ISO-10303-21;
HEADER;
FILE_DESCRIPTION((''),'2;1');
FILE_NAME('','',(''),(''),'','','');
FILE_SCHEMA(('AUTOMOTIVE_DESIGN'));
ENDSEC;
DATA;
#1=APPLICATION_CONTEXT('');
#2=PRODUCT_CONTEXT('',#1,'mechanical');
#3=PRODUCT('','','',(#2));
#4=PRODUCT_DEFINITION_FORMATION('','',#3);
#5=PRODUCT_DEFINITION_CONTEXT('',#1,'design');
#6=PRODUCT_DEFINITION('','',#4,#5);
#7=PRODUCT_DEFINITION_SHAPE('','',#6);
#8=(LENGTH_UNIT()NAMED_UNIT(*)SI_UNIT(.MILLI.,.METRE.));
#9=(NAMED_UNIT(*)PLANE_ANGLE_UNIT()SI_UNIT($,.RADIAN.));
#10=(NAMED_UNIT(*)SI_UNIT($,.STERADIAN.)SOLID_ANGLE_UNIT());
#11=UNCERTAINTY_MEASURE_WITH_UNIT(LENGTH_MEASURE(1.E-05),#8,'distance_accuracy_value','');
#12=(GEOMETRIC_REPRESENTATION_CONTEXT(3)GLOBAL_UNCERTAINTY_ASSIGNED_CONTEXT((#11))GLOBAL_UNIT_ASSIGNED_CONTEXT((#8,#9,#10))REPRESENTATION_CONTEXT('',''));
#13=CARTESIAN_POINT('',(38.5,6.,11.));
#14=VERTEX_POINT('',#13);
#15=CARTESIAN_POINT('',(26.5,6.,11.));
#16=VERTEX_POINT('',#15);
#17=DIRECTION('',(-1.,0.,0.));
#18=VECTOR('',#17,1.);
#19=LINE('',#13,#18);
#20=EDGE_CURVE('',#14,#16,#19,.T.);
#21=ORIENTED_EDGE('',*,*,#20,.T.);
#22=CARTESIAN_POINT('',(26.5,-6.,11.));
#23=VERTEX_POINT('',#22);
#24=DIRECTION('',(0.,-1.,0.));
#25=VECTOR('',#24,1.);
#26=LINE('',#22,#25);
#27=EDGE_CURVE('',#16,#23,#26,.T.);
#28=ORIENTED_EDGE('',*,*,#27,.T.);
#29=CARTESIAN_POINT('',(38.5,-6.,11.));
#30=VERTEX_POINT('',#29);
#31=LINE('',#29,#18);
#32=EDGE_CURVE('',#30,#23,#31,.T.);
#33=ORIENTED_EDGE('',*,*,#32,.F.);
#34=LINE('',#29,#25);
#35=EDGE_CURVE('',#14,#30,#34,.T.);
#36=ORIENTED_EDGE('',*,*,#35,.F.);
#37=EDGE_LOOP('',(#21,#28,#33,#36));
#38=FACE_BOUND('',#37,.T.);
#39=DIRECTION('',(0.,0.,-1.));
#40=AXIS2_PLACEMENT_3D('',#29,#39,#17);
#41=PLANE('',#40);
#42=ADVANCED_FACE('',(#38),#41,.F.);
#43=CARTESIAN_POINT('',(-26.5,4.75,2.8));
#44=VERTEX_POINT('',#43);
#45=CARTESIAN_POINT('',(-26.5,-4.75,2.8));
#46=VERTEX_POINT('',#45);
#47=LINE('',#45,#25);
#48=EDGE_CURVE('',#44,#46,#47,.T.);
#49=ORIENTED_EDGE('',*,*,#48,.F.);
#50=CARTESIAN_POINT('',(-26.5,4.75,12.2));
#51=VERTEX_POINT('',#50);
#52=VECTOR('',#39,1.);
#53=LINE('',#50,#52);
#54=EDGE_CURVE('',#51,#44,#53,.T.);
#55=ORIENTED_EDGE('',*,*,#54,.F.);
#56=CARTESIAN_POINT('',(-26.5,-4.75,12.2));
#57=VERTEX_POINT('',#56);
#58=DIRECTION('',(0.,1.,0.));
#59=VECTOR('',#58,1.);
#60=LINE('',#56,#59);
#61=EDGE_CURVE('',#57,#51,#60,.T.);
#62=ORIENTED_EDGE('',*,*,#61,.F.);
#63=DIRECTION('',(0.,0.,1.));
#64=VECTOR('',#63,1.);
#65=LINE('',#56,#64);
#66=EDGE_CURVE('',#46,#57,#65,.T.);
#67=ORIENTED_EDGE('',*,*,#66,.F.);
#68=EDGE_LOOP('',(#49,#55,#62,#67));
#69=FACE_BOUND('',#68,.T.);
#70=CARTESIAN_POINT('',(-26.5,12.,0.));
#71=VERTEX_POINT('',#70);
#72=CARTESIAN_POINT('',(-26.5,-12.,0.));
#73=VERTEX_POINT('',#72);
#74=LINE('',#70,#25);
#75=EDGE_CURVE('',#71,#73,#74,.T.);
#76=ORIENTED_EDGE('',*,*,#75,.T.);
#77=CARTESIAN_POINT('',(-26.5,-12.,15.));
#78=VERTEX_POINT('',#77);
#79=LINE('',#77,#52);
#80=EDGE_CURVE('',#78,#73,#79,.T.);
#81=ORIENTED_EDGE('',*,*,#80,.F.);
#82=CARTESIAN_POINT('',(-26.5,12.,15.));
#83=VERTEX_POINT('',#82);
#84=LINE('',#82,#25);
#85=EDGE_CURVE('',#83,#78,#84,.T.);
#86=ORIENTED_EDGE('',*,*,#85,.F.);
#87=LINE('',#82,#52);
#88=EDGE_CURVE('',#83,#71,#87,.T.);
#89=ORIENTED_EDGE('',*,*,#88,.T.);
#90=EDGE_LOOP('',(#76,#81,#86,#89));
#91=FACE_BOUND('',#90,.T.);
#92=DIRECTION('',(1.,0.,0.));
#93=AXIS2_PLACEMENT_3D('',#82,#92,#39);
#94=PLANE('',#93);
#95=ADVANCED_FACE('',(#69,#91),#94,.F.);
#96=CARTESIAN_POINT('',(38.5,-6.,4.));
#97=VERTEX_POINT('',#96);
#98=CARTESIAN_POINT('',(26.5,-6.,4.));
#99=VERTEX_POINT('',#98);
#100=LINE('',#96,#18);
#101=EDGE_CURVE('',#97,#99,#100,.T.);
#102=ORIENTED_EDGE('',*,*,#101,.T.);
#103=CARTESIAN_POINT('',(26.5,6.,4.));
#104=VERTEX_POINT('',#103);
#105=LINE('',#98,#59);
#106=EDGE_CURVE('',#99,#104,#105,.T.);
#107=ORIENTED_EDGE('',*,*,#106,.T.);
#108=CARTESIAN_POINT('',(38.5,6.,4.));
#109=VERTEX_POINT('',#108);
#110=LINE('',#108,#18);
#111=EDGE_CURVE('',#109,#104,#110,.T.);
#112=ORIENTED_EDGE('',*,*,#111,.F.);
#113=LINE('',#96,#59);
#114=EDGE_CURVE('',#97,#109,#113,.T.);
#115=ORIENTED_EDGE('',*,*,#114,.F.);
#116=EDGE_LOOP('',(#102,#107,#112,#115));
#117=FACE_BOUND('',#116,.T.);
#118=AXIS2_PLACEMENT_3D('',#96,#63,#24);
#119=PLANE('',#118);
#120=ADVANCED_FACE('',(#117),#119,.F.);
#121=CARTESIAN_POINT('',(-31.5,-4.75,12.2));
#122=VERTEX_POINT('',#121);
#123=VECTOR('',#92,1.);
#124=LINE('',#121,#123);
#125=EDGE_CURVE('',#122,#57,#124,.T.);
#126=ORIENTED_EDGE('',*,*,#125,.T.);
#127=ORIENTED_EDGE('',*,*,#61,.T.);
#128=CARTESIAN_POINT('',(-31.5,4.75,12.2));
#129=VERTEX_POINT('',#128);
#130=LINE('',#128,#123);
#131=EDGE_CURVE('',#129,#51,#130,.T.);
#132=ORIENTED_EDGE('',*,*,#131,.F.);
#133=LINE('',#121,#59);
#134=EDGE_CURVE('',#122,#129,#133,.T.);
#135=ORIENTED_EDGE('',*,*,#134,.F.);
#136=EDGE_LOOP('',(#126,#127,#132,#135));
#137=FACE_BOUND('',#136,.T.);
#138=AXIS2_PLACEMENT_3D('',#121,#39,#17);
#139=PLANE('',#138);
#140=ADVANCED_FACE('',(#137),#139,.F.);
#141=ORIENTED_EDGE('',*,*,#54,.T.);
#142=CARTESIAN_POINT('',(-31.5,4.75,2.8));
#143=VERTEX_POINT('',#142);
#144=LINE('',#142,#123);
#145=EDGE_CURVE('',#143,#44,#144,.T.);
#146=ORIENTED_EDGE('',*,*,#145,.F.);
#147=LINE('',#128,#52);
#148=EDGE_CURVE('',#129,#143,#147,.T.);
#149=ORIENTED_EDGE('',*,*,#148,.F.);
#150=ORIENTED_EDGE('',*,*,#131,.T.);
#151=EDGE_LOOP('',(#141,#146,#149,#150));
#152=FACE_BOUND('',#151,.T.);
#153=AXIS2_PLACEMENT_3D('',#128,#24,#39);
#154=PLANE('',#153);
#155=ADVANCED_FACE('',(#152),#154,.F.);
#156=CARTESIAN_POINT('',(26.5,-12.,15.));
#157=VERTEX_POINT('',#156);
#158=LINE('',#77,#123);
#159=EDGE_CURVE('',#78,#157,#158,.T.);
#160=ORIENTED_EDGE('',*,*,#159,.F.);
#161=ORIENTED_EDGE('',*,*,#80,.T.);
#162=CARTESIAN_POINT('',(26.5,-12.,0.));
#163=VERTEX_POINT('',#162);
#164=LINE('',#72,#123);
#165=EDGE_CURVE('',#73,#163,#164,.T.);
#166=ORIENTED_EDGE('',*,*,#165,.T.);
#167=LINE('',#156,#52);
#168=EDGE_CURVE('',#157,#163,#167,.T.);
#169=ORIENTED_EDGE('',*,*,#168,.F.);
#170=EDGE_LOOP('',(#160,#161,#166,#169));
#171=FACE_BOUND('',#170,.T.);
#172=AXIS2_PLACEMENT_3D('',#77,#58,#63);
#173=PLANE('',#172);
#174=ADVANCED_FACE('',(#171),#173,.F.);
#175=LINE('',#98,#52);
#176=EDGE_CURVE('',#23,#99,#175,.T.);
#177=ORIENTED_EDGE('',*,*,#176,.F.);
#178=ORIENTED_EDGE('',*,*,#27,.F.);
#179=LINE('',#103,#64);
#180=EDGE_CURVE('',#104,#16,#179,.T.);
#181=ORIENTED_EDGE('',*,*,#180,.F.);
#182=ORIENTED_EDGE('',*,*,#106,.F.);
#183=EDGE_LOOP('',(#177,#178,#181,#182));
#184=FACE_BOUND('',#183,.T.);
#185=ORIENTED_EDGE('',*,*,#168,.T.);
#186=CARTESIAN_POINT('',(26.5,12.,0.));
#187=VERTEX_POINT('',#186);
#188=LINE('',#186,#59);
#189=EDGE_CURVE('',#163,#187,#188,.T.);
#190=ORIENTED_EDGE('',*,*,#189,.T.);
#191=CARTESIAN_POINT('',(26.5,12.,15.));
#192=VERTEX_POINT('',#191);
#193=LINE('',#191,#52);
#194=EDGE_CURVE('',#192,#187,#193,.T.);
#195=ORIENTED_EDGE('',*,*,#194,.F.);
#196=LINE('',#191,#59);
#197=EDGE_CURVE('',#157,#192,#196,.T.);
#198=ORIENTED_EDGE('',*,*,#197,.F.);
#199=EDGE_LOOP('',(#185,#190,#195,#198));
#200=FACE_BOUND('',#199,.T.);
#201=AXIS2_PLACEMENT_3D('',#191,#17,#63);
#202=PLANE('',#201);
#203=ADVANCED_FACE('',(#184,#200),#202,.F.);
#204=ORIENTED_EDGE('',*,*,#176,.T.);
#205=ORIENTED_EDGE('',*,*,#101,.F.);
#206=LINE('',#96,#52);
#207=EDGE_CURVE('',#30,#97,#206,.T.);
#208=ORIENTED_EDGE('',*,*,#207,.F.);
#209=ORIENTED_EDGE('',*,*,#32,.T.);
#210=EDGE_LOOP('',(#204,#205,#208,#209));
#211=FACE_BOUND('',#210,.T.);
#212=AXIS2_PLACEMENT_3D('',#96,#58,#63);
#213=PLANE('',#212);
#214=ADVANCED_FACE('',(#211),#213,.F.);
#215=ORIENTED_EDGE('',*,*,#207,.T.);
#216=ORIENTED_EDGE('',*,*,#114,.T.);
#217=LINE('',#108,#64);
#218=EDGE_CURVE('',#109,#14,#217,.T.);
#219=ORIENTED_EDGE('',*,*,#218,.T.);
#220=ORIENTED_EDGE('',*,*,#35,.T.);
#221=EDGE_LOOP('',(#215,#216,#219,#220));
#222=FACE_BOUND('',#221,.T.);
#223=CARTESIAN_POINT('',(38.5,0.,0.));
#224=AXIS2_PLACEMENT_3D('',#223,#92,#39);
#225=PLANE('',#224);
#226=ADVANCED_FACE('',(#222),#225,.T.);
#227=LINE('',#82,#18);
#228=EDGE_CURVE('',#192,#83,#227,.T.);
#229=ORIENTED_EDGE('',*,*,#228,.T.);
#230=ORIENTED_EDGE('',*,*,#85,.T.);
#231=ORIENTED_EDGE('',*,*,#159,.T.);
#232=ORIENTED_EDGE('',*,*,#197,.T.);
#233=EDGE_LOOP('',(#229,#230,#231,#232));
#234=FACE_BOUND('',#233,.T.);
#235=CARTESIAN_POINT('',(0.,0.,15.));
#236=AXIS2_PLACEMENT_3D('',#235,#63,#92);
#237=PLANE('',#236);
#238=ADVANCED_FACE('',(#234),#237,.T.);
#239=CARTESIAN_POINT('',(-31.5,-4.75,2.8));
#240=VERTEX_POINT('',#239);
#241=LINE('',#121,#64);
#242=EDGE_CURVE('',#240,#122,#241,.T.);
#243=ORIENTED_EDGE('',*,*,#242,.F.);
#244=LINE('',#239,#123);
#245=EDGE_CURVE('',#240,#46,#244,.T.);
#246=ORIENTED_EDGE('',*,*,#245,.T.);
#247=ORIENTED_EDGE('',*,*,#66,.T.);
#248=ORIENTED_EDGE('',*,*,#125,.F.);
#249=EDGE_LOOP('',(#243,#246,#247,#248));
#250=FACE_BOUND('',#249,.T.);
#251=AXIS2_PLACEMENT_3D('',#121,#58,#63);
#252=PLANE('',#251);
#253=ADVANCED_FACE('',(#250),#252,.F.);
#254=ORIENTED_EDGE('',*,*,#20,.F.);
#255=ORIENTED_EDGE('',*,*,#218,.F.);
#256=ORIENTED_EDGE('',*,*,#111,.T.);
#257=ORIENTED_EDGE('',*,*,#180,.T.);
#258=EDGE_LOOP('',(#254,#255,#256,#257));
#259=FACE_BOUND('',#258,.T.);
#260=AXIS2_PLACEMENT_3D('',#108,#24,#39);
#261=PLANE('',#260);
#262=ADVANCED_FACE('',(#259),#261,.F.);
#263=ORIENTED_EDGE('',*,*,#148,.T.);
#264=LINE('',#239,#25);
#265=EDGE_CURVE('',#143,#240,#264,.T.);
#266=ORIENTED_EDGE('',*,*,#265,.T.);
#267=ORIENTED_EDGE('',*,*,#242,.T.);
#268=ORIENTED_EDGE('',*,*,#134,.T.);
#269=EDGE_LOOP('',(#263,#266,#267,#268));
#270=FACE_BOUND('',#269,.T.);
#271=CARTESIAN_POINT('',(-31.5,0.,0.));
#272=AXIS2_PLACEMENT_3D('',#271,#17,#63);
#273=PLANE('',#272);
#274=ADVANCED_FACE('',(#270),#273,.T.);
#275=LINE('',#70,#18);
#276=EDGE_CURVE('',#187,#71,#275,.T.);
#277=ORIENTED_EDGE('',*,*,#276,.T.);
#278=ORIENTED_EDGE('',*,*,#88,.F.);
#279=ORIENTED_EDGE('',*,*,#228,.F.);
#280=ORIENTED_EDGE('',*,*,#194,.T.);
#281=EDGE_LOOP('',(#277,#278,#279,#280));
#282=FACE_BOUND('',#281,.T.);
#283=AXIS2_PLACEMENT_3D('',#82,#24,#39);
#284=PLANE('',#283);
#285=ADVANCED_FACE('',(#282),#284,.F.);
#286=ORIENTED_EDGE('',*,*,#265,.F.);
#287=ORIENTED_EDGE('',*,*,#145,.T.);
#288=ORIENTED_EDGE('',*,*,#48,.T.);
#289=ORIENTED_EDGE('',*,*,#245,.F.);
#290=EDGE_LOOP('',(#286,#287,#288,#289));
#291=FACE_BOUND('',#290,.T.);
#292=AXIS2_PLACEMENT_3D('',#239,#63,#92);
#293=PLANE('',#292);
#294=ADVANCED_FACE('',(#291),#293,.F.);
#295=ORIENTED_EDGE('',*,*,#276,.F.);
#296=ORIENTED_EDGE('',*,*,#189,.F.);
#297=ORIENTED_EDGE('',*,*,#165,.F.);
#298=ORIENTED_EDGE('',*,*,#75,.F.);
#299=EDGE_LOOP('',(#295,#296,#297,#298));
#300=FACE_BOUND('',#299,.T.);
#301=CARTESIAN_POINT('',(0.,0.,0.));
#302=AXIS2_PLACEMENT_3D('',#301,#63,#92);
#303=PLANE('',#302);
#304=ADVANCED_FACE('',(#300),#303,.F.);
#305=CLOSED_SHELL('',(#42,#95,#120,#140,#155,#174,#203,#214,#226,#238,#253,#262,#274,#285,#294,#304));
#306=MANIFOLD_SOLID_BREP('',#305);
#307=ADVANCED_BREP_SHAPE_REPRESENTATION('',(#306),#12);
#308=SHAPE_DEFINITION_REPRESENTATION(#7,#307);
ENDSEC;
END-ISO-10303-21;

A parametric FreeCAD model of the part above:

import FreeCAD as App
import Part
import Sketcher
from FreeCAD import Vector


def add_polygon(sketch, points):
    """Adds a closed chain of lines whose ends are joined by coincident constraints."""
    first, n = sketch.GeometryCount, len(points)
    for a, b in zip(points, points[1:] + points[:1]):
        sketch.addGeometry(Part.LineSegment(App.Vector(*a, 0), App.Vector(*b, 0)), False)
    for i in range(n):
        sketch.addConstraint(Sketcher.Constraint("Coincident", first + i, 2, first + (i + 1) % n, 1))

doc = App.newDocument("Part")
body = doc.addObject("PartDesign::Body", "Body")

# Sketch on XY plane
sketch1 = body.newObject("Sketcher::SketchObject", "Sketch")
sketch1.AttachmentSupport = (doc.getObject("XY_Plane"), [""])
sketch1.MapMode = "FlatFace"
add_polygon(sketch1, [(-26.5, 12), (-26.5, -12), (26.5, -12), (26.5, 12)])  # lines 0-3
sketch1.addConstraint(Sketcher.Constraint("Vertical", 0))
sketch1.addConstraint(Sketcher.Constraint("Horizontal", 1))
sketch1.addConstraint(Sketcher.Constraint("Vertical", 2))
sketch1.addConstraint(Sketcher.Constraint("Horizontal", 3))
sketch1.addConstraint(Sketcher.Constraint("Symmetric", 0, 2, 2, 2, -1, 1))
sketch1.addConstraint(Sketcher.Constraint("DistanceX", 1, 1, 1, 2, 53.0))
sketch1.addConstraint(Sketcher.Constraint("DistanceY", 0, 2, 0, 1, 24.0))
pad1 = body.newObject("PartDesign::Pad", "Pad")
pad1.Profile = sketch1
pad1.Length = 15

# Sketch on YZ plane
sketch2 = body.newObject("Sketcher::SketchObject", "Sketch001")
sketch2.AttachmentSupport = (doc.getObject("YZ_Plane"), [""])
sketch2.MapMode = "FlatFace"
sketch2.AttachmentOffset = App.Placement(Vector(0, 0, 26.5), App.Rotation())
add_polygon(sketch2, [(6, 11), (-6, 11), (-6, 4), (6, 4)])  # lines 0-3
sketch2.addConstraint(Sketcher.Constraint("Horizontal", 0))
sketch2.addConstraint(Sketcher.Constraint("Vertical", 1))
sketch2.addConstraint(Sketcher.Constraint("Horizontal", 2))
sketch2.addConstraint(Sketcher.Constraint("Vertical", 3))
sketch2.addConstraint(Sketcher.Constraint("DistanceX", 0, 2, 0, 1, 12.0))
sketch2.addConstraint(Sketcher.Constraint("DistanceY", 1, 2, 1, 1, 7.0))
sketch2.addConstraint(Sketcher.Constraint("DistanceX", 0, 2, -1, 1, 6.0))
sketch2.addConstraint(Sketcher.Constraint("DistanceY", -1, 1, 0, 2, 11.0))
pad2 = body.newObject("PartDesign::Pad", "Pad001")
pad2.Profile = sketch2
pad2.Length = 12

# Sketch on YZ plane
sketch3 = body.newObject("Sketcher::SketchObject", "Sketch002")
sketch3.AttachmentSupport = (doc.getObject("YZ_Plane"), [""])
sketch3.MapMode = "FlatFace"
sketch3.AttachmentOffset = App.Placement(Vector(0, 0, -26.5), App.Rotation())
add_polygon(sketch3, [(4.75, 2.8), (-4.75, 2.8), (-4.75, 12.2), (4.75, 12.2)])  # lines 0-3
sketch3.addConstraint(Sketcher.Constraint("Horizontal", 0))
sketch3.addConstraint(Sketcher.Constraint("Vertical", 1))
sketch3.addConstraint(Sketcher.Constraint("Horizontal", 2))
sketch3.addConstraint(Sketcher.Constraint("Vertical", 3))
sketch3.addConstraint(Sketcher.Constraint("DistanceX", 0, 2, 0, 1, 9.5))
sketch3.addConstraint(Sketcher.Constraint("DistanceY", 1, 1, 1, 2, 9.4))
sketch3.addConstraint(Sketcher.Constraint("DistanceY", -1, 1, 0, 2, 2.8))
sketch3.addConstraint(Sketcher.Constraint("DistanceX", 0, 2, -1, 1, 4.75))
pad3 = body.newObject("PartDesign::Pad", "Pad002")
pad3.Profile = sketch3
pad3.Length = 5
pad3.Reversed = True

doc.recompute()
